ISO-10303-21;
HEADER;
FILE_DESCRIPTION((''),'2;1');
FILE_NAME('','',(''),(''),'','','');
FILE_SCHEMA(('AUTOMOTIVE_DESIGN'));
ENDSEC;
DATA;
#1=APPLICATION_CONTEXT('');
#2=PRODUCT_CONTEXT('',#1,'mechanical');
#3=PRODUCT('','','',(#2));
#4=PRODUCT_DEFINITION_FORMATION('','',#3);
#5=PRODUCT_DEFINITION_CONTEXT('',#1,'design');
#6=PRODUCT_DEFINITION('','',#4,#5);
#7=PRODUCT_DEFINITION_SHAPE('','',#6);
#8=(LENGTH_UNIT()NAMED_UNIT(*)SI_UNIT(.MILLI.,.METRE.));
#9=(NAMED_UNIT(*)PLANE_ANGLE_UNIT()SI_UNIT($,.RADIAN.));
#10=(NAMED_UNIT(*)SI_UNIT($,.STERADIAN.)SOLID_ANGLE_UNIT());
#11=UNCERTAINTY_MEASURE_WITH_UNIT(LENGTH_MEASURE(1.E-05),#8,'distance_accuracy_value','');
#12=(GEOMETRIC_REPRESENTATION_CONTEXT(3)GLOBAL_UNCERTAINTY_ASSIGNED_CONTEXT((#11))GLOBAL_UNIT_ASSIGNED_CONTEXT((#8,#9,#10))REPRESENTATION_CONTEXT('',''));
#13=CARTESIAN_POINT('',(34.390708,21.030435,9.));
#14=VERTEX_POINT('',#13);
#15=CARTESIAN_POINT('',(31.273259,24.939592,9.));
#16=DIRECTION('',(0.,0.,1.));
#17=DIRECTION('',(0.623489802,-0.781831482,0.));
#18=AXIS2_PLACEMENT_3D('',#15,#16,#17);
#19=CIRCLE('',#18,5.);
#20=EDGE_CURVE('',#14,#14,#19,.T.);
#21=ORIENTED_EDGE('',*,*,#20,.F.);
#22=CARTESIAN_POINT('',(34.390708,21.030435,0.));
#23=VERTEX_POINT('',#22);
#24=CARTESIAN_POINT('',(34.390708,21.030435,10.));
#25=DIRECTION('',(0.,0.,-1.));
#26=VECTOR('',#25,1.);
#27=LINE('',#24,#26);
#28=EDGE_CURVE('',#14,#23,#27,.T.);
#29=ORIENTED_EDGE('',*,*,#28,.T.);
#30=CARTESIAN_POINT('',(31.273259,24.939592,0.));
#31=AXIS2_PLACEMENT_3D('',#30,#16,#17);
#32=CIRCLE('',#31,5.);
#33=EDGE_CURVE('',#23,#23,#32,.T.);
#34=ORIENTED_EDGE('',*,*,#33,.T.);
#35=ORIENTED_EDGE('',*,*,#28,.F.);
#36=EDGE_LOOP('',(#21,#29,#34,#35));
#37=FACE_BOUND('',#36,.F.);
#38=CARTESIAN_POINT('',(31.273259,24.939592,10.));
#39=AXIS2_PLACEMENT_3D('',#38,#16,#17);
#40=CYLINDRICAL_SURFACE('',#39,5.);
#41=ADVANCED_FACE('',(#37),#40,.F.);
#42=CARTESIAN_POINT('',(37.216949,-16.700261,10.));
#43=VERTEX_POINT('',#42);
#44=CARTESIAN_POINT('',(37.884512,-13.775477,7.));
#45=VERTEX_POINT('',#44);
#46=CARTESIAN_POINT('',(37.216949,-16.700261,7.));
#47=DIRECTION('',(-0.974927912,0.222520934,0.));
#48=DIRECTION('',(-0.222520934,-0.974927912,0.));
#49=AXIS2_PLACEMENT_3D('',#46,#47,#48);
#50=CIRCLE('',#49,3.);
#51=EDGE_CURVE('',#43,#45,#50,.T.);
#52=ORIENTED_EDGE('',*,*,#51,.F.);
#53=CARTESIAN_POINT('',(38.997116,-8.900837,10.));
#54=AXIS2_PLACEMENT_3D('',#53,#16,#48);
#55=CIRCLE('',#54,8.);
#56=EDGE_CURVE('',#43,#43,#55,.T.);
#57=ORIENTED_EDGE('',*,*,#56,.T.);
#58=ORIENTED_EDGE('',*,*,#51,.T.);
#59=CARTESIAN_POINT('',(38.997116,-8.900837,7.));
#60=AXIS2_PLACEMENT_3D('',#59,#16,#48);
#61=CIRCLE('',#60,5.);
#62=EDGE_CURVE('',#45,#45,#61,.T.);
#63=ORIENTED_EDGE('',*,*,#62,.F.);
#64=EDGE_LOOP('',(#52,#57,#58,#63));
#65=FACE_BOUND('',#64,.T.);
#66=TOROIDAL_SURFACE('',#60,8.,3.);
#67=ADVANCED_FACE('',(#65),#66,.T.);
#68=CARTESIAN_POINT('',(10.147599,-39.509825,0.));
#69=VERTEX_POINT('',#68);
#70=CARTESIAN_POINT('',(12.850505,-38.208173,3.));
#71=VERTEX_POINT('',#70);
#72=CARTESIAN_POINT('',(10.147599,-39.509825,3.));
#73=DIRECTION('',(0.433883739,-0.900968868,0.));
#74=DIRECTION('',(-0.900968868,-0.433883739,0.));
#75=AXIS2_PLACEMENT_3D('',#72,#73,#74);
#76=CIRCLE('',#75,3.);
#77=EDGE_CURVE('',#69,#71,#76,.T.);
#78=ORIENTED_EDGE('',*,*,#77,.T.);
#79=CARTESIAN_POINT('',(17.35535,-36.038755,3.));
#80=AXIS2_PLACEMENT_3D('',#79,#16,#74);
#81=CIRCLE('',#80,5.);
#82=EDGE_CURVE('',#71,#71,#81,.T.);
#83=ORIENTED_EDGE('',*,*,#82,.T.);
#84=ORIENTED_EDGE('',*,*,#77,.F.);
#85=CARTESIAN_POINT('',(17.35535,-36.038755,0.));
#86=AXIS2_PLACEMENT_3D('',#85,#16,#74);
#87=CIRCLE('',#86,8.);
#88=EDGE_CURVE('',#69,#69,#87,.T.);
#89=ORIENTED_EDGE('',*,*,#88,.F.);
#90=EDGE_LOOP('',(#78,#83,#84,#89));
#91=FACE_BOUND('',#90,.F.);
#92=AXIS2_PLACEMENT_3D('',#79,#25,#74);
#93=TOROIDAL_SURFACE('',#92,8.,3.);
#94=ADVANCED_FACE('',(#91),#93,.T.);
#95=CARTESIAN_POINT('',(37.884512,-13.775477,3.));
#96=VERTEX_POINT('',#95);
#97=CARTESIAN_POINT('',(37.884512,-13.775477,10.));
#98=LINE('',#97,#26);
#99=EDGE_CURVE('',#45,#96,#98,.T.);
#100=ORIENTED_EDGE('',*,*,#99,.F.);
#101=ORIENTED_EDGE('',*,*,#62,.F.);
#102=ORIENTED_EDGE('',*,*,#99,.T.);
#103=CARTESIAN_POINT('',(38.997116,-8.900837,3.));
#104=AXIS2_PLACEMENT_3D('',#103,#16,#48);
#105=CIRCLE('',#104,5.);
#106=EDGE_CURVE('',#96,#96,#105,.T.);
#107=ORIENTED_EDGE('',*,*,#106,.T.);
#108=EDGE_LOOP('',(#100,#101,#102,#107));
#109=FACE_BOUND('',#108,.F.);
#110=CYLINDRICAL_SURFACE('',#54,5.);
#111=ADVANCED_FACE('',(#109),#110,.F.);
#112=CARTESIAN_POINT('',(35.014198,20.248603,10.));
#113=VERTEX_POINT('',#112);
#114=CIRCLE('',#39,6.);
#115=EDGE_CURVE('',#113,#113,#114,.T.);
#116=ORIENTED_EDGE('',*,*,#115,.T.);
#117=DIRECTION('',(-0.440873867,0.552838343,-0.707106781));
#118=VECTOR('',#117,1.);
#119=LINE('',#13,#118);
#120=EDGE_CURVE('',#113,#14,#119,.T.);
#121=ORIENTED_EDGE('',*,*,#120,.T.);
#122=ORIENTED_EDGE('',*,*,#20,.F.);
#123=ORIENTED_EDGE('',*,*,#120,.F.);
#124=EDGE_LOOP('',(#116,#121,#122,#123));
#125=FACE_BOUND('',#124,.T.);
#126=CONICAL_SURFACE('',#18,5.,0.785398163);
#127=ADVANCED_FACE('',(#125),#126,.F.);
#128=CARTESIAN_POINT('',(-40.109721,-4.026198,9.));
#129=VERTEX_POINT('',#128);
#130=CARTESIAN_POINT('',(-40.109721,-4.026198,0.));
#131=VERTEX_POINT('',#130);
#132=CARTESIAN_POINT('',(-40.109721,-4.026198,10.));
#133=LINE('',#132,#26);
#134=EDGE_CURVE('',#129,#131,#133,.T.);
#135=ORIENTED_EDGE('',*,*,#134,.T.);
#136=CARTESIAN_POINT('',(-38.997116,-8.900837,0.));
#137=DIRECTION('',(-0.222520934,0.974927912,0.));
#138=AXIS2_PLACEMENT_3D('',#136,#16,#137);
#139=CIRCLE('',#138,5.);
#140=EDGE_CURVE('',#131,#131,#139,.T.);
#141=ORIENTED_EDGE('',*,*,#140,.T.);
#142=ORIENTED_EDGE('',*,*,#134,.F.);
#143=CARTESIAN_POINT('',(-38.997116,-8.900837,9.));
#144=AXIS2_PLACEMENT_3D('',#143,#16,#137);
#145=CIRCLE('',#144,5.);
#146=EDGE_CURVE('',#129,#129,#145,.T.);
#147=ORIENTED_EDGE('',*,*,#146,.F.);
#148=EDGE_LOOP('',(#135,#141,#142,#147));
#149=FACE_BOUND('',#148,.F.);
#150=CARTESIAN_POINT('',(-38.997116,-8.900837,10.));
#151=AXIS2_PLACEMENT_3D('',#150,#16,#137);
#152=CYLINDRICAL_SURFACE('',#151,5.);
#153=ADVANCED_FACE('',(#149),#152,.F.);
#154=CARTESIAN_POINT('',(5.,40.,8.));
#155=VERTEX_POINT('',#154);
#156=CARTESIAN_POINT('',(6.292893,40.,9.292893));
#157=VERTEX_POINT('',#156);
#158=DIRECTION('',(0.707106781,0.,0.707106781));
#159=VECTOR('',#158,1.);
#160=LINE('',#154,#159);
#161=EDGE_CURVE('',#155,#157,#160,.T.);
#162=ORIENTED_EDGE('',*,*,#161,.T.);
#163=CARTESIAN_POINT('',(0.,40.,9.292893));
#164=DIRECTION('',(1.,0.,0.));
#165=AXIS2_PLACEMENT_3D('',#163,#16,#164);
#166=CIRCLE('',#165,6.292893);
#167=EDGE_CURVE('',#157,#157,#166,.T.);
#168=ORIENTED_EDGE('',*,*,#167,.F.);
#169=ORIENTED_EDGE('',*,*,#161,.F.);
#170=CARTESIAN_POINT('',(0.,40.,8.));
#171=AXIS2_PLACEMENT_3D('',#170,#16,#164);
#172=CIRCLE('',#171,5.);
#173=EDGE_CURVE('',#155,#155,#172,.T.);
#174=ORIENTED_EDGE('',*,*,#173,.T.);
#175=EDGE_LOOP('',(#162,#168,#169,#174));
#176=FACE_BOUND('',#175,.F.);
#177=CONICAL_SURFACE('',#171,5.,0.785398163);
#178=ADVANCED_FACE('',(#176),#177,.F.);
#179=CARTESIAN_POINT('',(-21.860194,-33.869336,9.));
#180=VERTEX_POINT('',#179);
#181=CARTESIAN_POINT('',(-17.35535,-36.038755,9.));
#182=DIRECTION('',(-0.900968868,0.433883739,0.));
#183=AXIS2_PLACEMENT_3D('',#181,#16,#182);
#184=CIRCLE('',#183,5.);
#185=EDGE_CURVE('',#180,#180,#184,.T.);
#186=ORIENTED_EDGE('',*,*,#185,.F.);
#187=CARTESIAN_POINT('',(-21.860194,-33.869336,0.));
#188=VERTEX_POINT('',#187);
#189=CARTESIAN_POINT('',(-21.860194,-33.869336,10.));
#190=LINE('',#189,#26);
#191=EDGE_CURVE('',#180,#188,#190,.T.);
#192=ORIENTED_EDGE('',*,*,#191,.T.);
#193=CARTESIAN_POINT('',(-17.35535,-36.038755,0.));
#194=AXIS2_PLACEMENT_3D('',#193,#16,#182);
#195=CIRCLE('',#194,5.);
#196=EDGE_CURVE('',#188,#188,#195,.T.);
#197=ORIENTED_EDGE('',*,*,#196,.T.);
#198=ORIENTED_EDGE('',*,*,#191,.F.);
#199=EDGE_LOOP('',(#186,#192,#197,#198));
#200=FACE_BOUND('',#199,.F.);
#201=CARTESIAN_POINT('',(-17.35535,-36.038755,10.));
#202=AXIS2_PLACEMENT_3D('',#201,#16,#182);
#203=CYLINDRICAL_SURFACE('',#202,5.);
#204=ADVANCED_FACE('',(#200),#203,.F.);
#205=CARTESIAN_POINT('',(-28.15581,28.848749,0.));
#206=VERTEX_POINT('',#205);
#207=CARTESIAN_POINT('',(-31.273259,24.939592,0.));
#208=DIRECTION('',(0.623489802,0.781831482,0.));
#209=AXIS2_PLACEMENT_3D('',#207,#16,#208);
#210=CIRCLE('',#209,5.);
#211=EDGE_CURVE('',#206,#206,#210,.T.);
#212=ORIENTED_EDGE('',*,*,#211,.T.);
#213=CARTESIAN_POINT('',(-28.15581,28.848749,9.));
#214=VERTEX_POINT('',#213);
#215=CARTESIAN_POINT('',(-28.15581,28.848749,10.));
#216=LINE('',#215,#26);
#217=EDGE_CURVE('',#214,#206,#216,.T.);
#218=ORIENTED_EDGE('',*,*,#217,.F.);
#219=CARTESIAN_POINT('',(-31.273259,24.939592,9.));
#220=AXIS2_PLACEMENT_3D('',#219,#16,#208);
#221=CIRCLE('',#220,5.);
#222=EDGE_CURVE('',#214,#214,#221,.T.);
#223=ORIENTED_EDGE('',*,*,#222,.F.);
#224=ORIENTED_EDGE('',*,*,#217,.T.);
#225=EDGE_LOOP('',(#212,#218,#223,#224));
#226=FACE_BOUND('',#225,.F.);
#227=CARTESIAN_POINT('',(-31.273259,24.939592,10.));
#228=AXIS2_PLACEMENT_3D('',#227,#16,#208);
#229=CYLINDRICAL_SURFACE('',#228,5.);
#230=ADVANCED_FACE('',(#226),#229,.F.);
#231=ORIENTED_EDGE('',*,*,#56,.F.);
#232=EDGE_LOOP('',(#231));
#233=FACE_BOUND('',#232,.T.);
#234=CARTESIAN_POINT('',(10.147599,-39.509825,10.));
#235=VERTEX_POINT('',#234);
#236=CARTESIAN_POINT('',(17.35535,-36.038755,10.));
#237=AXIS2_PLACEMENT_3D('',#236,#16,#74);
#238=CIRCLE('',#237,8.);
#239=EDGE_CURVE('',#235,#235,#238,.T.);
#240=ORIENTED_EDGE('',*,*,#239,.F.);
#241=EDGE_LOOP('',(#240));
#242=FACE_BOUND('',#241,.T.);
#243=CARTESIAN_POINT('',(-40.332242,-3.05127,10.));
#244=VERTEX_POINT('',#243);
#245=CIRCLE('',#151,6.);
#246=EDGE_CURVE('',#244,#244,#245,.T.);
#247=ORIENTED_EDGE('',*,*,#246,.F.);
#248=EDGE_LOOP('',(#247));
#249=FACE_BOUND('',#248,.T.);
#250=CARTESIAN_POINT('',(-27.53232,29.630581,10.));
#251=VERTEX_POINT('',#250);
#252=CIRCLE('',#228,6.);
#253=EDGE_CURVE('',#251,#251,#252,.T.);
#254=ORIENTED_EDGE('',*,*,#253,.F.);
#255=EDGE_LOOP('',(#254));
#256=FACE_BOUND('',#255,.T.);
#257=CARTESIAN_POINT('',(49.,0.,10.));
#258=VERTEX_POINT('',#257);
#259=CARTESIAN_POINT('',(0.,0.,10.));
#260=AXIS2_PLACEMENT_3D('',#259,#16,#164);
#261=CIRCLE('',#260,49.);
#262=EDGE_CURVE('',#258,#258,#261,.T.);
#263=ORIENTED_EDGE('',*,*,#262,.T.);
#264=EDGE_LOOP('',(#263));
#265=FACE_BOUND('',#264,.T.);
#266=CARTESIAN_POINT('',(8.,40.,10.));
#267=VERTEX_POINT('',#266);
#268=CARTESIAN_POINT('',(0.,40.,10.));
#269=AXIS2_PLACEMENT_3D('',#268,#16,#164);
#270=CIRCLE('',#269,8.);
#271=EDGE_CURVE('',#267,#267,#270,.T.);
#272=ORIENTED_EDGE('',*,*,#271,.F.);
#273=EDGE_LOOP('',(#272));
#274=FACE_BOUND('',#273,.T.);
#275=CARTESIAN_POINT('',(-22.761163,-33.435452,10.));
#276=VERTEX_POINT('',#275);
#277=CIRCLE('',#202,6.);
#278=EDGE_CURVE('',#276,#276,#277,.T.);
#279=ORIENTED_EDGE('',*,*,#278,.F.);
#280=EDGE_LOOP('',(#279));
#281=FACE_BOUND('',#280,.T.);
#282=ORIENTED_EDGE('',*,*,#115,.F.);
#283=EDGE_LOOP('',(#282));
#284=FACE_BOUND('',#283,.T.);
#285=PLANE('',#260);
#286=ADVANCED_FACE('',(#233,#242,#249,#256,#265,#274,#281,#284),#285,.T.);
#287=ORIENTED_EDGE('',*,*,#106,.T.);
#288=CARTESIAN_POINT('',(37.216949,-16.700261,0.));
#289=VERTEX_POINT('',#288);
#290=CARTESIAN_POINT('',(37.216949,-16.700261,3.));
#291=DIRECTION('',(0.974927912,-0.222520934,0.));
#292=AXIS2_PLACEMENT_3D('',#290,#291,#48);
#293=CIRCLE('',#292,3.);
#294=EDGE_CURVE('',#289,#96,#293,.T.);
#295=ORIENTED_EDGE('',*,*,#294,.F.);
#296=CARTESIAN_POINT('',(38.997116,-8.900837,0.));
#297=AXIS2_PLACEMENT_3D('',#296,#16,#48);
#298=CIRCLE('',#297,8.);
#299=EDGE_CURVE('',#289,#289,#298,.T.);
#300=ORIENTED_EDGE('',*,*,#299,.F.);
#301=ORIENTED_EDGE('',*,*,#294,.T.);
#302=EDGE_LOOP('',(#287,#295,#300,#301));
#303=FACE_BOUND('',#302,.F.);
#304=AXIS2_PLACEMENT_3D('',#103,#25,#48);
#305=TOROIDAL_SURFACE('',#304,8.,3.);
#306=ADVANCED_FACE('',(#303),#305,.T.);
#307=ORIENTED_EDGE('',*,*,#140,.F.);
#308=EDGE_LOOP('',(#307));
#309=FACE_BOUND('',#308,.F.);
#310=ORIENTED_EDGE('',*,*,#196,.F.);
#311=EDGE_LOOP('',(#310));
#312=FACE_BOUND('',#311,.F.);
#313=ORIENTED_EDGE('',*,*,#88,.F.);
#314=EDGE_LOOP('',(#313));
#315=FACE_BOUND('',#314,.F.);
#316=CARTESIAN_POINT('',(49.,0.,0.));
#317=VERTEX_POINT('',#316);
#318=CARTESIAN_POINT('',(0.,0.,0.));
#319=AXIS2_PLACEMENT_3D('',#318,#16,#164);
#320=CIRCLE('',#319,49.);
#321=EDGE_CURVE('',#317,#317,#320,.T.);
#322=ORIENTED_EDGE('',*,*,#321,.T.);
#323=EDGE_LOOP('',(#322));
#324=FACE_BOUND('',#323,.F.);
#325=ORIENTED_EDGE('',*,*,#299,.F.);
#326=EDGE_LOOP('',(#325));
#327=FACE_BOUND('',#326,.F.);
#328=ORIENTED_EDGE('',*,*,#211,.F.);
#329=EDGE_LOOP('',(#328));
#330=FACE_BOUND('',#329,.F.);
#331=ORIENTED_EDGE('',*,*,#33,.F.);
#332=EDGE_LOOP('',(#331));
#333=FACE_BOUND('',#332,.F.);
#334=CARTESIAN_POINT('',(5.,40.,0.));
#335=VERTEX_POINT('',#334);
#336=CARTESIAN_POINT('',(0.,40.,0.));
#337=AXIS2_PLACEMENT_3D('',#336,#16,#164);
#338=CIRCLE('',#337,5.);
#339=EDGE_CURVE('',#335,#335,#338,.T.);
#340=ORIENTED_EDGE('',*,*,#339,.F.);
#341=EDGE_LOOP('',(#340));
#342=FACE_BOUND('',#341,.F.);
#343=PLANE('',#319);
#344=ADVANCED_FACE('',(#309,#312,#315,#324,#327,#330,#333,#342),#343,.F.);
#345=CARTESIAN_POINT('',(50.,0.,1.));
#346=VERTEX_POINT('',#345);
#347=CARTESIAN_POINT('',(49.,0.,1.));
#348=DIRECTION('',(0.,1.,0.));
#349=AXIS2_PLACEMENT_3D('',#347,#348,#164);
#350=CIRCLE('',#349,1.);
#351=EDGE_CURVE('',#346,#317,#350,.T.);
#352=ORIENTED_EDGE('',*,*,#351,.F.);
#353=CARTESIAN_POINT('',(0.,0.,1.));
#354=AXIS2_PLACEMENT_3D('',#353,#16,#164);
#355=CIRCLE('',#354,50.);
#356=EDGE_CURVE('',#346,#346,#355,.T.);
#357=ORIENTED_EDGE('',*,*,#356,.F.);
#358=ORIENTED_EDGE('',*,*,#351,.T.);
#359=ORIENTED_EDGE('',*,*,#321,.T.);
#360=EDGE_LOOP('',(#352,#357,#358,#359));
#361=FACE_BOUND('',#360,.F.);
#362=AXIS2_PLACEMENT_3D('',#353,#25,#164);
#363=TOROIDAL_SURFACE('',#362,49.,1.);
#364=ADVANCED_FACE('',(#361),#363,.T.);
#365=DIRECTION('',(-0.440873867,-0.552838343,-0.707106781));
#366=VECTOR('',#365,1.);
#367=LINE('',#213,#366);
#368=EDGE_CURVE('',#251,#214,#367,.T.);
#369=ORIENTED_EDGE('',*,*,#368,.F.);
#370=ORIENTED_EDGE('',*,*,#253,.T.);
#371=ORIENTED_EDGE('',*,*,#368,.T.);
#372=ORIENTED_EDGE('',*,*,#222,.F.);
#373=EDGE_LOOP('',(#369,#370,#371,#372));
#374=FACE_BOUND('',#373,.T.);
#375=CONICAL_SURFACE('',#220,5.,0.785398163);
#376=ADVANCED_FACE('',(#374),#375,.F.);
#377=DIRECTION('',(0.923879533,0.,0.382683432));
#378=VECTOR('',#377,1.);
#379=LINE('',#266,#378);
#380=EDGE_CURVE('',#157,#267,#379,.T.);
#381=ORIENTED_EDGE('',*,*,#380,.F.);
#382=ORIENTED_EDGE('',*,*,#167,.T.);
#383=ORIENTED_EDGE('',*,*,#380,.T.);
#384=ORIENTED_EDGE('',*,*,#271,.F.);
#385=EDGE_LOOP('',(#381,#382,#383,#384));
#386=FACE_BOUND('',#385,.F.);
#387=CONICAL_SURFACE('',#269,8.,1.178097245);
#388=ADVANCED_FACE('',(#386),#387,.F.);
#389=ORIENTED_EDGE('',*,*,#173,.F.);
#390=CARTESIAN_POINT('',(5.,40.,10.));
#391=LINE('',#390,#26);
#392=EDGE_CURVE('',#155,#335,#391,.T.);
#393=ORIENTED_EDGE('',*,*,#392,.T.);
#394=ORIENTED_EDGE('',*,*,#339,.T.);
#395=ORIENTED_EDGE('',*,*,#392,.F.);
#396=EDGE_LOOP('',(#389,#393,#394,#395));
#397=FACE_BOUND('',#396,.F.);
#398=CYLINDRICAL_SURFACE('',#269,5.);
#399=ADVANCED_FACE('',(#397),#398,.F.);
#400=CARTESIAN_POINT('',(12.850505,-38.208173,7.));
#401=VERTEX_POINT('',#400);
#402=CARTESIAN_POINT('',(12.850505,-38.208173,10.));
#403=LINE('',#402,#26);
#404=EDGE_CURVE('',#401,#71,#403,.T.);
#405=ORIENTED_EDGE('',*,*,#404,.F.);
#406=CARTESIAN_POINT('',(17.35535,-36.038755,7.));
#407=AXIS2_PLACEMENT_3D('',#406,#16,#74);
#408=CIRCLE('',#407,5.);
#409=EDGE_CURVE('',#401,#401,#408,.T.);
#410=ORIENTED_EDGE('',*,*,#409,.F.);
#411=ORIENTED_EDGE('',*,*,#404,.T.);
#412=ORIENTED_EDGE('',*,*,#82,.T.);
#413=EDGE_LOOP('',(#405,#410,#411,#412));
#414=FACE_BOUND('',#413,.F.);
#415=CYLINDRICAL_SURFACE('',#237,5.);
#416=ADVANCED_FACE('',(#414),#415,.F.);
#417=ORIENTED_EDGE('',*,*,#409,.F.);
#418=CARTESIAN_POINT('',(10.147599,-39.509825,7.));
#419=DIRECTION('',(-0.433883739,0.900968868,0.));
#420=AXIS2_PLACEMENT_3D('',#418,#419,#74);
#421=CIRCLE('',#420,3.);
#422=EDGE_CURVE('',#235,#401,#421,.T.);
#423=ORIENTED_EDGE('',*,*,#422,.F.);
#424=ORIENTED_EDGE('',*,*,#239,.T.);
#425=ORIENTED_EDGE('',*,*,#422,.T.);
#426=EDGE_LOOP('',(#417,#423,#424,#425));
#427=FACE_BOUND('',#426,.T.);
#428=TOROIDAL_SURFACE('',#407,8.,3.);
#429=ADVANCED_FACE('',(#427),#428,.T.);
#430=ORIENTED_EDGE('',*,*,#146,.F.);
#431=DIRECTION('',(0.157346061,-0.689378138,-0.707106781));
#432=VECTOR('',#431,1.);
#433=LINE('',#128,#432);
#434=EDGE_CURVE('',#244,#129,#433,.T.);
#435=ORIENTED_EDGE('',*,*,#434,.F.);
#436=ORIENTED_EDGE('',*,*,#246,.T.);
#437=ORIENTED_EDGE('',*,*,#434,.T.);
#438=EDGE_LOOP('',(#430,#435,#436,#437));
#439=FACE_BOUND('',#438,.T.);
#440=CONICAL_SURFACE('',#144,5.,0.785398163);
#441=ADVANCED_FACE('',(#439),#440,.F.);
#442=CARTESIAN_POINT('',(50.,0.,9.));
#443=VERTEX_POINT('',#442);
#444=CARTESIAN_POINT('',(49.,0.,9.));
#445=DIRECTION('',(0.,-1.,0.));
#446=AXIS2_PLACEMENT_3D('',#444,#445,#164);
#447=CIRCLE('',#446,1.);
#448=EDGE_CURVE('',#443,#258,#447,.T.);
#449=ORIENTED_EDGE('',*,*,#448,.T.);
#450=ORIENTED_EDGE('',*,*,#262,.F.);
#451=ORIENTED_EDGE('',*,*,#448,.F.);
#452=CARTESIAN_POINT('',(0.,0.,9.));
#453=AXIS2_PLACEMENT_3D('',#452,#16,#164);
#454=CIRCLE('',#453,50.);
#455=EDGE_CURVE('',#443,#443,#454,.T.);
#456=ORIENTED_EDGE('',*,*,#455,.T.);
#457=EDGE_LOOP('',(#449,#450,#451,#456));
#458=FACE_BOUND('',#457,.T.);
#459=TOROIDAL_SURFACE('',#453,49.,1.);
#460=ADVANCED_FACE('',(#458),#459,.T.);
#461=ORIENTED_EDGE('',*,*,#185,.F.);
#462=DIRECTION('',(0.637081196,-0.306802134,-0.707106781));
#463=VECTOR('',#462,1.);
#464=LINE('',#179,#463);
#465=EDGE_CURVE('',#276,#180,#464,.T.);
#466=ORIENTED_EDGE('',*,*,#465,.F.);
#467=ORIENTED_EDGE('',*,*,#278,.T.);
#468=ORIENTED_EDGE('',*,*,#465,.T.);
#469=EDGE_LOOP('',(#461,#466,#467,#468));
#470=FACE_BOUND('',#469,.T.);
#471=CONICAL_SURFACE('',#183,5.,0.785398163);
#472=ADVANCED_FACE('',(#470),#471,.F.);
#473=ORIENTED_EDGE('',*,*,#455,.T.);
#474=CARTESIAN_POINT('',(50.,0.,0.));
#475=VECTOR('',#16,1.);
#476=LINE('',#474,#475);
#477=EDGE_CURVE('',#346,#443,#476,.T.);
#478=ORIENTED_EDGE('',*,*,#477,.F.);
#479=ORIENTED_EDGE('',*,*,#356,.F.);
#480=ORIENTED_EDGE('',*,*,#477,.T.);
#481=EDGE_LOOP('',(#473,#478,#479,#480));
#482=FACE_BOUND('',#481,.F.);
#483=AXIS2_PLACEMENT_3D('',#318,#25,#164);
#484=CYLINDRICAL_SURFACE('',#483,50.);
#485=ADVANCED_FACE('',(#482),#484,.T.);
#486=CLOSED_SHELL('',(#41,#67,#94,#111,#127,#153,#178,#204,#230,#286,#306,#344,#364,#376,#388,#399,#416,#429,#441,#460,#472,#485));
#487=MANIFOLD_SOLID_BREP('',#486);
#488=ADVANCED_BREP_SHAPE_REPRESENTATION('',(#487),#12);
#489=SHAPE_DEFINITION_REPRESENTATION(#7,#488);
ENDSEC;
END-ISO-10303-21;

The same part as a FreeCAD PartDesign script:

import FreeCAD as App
import Part
import Sketcher

V = App.Vector


def edges_at(feature, points):
    """Names of the edges that pass closest to the given points."""
    edges = feature.Shape.Edges
    near = lambda p: min(range(len(edges)), key=lambda i: edges[i].distToShape(Part.Vertex(*p))[0])
    return sorted({f"Edge{near(p) + 1}" for p in points})

doc = App.newDocument("Part")
body = doc.addObject("PartDesign::Body", "Body")

# Sketch on XY plane
sketch1 = doc.addObject("Sketcher::SketchObject", "Sketch")
body.addObject(sketch1)
sketch1.AttachmentSupport = (doc.XY_Plane, [""])
sketch1.MapMode = "FlatFace"
sketch1.addGeometry(Part.Circle(V(0, 0, 0), V(0, 0, 1), 50), False)
sketch1.addConstraint(Sketcher.Constraint("Coincident", 0, 3, -1, 1))
sketch1.addConstraint(Sketcher.Constraint("Diameter", 0, 100.0))
pad1 = doc.addObject("PartDesign::Pad", "Pad")
body.addObject(pad1)
pad1.Profile = sketch1
pad1.Length = 10

# Sketch on XY plane
sketch2 = doc.addObject("Sketcher::SketchObject", "Sketch001")
body.addObject(sketch2)
sketch2.AttachmentSupport = (doc.XY_Plane, [""])
sketch2.MapMode = "FlatFace"
sketch2.AttachmentOffset = App.Placement(V(0, 0, 10), App.Rotation())
sketch2.addGeometry(Part.Circle(V(0, 40, 0), V(0, 0, 1), 5), False)
sketch2.addConstraint(Sketcher.Constraint("PointOnObject", 0, 3, -2))
sketch2.addConstraint(Sketcher.Constraint("Diameter", 0, 10.0))
sketch2.addConstraint(Sketcher.Constraint("DistanceY", -1, 1, 0, 3, 40.0))
pocket1 = doc.addObject("PartDesign::Pocket", "Pocket")
body.addObject(pocket1)
pocket1.Profile = sketch2
pocket1.Type = "ThroughAll"
doc.recompute()

polarpattern = doc.addObject("PartDesign::PolarPattern", "PolarPattern")
body.addObject(polarpattern)
polarpattern.Originals = [pocket1]
polarpattern.Axis = (doc.Z_Axis, [""])
polarpattern.Angle = 360
polarpattern.Occurrences = 7
body.Tip = polarpattern
doc.recompute()

fillet = doc.addObject("PartDesign::Fillet", "Fillet")
body.addObject(fillet)
fillet.Base = (polarpattern, edges_at(polarpattern, [(-50, 0, 10), (-50, 0, 0)]))
fillet.Radius = 1
doc.recompute()

fillet2 = doc.addObject("PartDesign::Fillet", "Fillet001")
body.addObject(fillet2)
fillet2.Base = (fillet, edges_at(fillet, [
    (21.86, -33.869, 10),
    (21.86, -33.869, 0),
    (40.11, -4.026, 0),
    (40.11, -4.026, 10),
]))
fillet2.Radius = 3
doc.recompute()

chamfer = doc.addObject("PartDesign::Chamfer", "Chamfer")
body.addObject(chamfer)
chamfer.Base = (fillet2, edges_at(fillet2, [(-5, 40, 10)]))
chamfer.Size = 2
doc.recompute()

chamfer2 = doc.addObject("PartDesign::Chamfer", "Chamfer001")
body.addObject(chamfer2)
chamfer2.Base = (chamfer, edges_at(chamfer, [
    (-7, 40, 10),
    (24.563, -32.568, 10),
    (-49, 0, 10),
    (-12.851, -38.208, 10),
    (-37.885, -13.775, 10),
    (-34.391, 21.03, 10),
    (28.156, 28.849, 10),
    (40.777, -1.101, 10),
]))
chamfer2.Size = 1

doc.recompute()
